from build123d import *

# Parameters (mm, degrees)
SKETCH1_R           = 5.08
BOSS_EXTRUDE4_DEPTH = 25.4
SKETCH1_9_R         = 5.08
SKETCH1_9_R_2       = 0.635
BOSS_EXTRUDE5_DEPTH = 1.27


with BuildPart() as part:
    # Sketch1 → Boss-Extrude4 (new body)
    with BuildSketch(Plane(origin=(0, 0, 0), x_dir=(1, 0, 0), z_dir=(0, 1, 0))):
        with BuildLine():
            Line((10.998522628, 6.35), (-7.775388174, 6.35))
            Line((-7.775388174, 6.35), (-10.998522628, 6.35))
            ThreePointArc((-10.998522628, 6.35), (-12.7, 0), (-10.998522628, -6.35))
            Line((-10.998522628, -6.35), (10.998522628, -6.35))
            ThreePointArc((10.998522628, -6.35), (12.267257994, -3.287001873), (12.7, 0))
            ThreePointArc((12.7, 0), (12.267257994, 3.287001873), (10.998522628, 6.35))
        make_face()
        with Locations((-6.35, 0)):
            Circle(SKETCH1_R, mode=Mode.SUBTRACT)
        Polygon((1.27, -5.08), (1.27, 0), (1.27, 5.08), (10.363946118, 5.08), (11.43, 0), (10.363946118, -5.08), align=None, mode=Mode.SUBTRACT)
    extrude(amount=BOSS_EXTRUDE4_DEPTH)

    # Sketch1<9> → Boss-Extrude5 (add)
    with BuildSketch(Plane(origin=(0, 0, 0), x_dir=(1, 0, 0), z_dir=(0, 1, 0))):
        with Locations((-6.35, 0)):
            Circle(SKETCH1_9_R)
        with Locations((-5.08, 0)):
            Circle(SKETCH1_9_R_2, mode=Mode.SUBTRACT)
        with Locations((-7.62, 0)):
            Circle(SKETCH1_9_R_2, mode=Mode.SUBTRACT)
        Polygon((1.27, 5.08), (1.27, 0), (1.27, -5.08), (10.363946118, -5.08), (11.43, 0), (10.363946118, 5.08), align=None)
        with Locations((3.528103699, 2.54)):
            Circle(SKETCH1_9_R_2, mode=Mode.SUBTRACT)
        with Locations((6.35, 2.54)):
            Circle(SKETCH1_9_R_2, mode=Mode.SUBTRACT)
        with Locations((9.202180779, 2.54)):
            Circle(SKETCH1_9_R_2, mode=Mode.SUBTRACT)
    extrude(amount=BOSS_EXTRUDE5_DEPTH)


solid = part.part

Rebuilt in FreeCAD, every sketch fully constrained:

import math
import FreeCAD as App
import Part
import Sketcher
Q = App.Units.Quantity


def add_polygon(sketch, points):
    """Adds a closed chain of lines whose ends are joined by coincident constraints."""
    first, n = sketch.GeometryCount, len(points)
    for a, b in zip(points, points[1:] + points[:1]):
        sketch.addGeometry(Part.LineSegment(App.Vector(*a, 0), App.Vector(*b, 0)), False)
    for i in range(n):
        sketch.addConstraint(Sketcher.Constraint("Coincident", first + i, 2, first + (i + 1) % n, 1))

doc = App.newDocument("Part")
body = doc.addObject("PartDesign::Body", "Body")

# Sketch on XZ plane
sketch1 = body.newObject("Sketcher::SketchObject", "Sketch")
sketch1.AttachmentSupport = (doc.getObject("XZ_Plane"), [""])
sketch1.MapMode = "FlatFace"
sketch1.addGeometry(Part.LineSegment(App.Vector(10.998523, -6.35, 0), App.Vector(-10.998523, -6.35, 0)), False)  # 0
sketch1.addGeometry(Part.ArcOfCircle(Part.Circle(App.Vector(0, 0, 0), App.Vector(0, 0, 1), 12.7), math.radians(150), math.radians(210)), False)  # 1
sketch1.addGeometry(Part.LineSegment(App.Vector(-10.998523, 6.35, 0), App.Vector(10.998523, 6.35, 0)), False)  # 2
sketch1.addGeometry(Part.ArcOfCircle(Part.Circle(App.Vector(0, 0, 0), App.Vector(0, 0, 1), 12.7), math.radians(0), math.radians(30)), False)  # 3
sketch1.addGeometry(Part.ArcOfCircle(Part.Circle(App.Vector(0, 0, 0), App.Vector(0, 0, 1), 12.7), math.radians(-30), math.radians(0)), False)  # 4
sketch1.addGeometry(Part.Circle(App.Vector(-6.35, 0, 0), App.Vector(0, 0, 1), 5.08), False)  # 5
add_polygon(sketch1, [(10.363946, 5.08), (1.27, 5.08), (1.27, -5.08), (10.363946, -5.08), (11.43, 0)])  # lines 6-10
sketch1.addConstraint([
    Sketcher.Constraint("Coincident", 0, 2, 1, 2),
    Sketcher.Constraint("Coincident", 1, 1, 2, 1),
    Sketcher.Constraint("Coincident", 2, 2, 3, 2),
    Sketcher.Constraint("Tangent", 3, 1, 4, 2),
    Sketcher.Constraint("Coincident", 4, 1, 0, 1),
    Sketcher.Constraint("Horizontal", 0),
    Sketcher.Constraint("Horizontal", 2),
    Sketcher.Constraint("Horizontal", 6),
    Sketcher.Constraint("Vertical", 7),
    Sketcher.Constraint("Horizontal", 8),
    Sketcher.Constraint("Coincident", 1, 3, -1, 1),
    Sketcher.Constraint("Coincident", 3, 3, -1, 1),
    Sketcher.Constraint("Equal", 1, 3),
    Sketcher.Constraint("Equal", 3, 4),
    Sketcher.Constraint("Symmetric", 8, 2, 10, 2, -1),
    Sketcher.Constraint("PointOnObject", 5, 3, -1),
    Sketcher.Constraint("PointOnObject", 3, 1, -1),
    Sketcher.Constraint("PointOnObject", 9, 2, -1),
    Sketcher.Constraint("Vertical", 0, 2, 1, 1),
    Sketcher.Constraint("Diameter", 5, Q("0.4 in")),
    Sketcher.Constraint("Radius", 1, Q("0.5 in")),
    Sketcher.Constraint("DistanceY", 7, 2, 7, 1, Q("0.4 in")),
    Sketcher.Constraint("DistanceY", 0, 2, 1, 1, Q("0.5 in")),
    Sketcher.Constraint("DistanceX", 5, 3, 6, 2, Q("0.3 in")),
    Sketcher.Constraint("DistanceX", 6, 2, 9, 2, Q("0.4 in")),
    Sketcher.Constraint("DistanceX", 5, 3, -1, 1, Q("0.25 in")),
    Sketcher.Constraint("DistanceX", 6, 2, 6, 1, 9.093946),
])
pad1 = body.newObject("PartDesign::Pad", "Pad")
pad1.Profile = sketch1
pad1.Length = Q("1 in")
pad1.Reversed = True

# Sketch on XZ plane
sketch2 = body.newObject("Sketcher::SketchObject", "Sketch001")
sketch2.AttachmentSupport = (doc.getObject("XZ_Plane"), [""])
sketch2.MapMode = "FlatFace"
sketch2.addGeometry(Part.Circle(App.Vector(-6.35, 0, 0), App.Vector(0, 0, 1), 5.08), False)  # 0
sketch2.addGeometry(Part.Circle(App.Vector(-7.62, 0, 0), App.Vector(0, 0, 1), 0.635), False)  # 1
sketch2.addGeometry(Part.Circle(App.Vector(-5.08, 0, 0), App.Vector(0, 0, 1), 0.635), False)  # 2
add_polygon(sketch2, [(1.27, -5.08), (1.27, 5.08), (10.363946, 5.08), (11.43, 0), (10.363946, -5.08)])  # lines 3-7
sketch2.addGeometry(Part.Circle(App.Vector(3.528104, -2.54, 0), App.Vector(0, 0, 1), 0.635), False)  # 8
sketch2.addGeometry(Part.Circle(App.Vector(6.35, -2.54, 0), App.Vector(0, 0, 1), 0.635), False)  # 9
sketch2.addGeometry(Part.Circle(App.Vector(9.202181, -2.54, 0), App.Vector(0, 0, 1), 0.635), False)  # 10
sketch2.addConstraint([
    Sketcher.Constraint("Vertical", 3),
    Sketcher.Constraint("Horizontal", 4),
    Sketcher.Constraint("Horizontal", 7),
    Sketcher.Constraint("Equal", 1, 2),
    Sketcher.Constraint("Equal", 2, 8),
    Sketcher.Constraint("Equal", 8, 9),
    Sketcher.Constraint("Equal", 9, 10),
    Sketcher.Constraint("Symmetric", 4, 2, 6, 2, -1),
    Sketcher.Constraint("PointOnObject", 0, 3, -1),
    Sketcher.Constraint("PointOnObject", 1, 3, -1),
    Sketcher.Constraint("PointOnObject", 2, 3, -1),
    Sketcher.Constraint("PointOnObject", 5, 2, -1),
    Sketcher.Constraint("Horizontal", 8, 3, 9, 3),
    Sketcher.Constraint("Horizontal", 9, 3, 10, 3),
    Sketcher.Constraint("Diameter", 0, Q("0.4 in")),
    Sketcher.Constraint("Diameter", 1, Q("0.05 in")),
    Sketcher.Constraint("DistanceY", 3, 1, 3, 2, Q("0.4 in")),
    Sketcher.Constraint("DistanceX", 1, 3, -1, 1, Q("0.3 in")),
    Sketcher.Constraint("DistanceX", 2, 3, -1, 1, Q("0.2 in")),
    Sketcher.Constraint("DistanceY", 8, 3, -1, 1, Q("0.1 in")),
    Sketcher.Constraint("DistanceX", 0, 3, 9, 3, Q("0.5 in")),
    Sketcher.Constraint("DistanceX", 0, 3, 3, 2, Q("0.3 in")),
    Sketcher.Constraint("DistanceX", 9, 3, 5, 2, Q("0.2 in")),
    Sketcher.Constraint("DistanceX", 0, 3, -1, 1, Q("0.25 in")),
    Sketcher.Constraint("DistanceX", 4, 1, 4, 2, 9.093946),
    Sketcher.Constraint("DistanceX", -1, 1, 10, 3, 9.202181),
    Sketcher.Constraint("DistanceX", -1, 1, 8, 3, 3.528104),
])
pad2 = body.newObject("PartDesign::Pad", "Pad001")
pad2.Profile = sketch2
pad2.Length = Q("0.05 in")
pad2.Reversed = True

doc.recompute()
